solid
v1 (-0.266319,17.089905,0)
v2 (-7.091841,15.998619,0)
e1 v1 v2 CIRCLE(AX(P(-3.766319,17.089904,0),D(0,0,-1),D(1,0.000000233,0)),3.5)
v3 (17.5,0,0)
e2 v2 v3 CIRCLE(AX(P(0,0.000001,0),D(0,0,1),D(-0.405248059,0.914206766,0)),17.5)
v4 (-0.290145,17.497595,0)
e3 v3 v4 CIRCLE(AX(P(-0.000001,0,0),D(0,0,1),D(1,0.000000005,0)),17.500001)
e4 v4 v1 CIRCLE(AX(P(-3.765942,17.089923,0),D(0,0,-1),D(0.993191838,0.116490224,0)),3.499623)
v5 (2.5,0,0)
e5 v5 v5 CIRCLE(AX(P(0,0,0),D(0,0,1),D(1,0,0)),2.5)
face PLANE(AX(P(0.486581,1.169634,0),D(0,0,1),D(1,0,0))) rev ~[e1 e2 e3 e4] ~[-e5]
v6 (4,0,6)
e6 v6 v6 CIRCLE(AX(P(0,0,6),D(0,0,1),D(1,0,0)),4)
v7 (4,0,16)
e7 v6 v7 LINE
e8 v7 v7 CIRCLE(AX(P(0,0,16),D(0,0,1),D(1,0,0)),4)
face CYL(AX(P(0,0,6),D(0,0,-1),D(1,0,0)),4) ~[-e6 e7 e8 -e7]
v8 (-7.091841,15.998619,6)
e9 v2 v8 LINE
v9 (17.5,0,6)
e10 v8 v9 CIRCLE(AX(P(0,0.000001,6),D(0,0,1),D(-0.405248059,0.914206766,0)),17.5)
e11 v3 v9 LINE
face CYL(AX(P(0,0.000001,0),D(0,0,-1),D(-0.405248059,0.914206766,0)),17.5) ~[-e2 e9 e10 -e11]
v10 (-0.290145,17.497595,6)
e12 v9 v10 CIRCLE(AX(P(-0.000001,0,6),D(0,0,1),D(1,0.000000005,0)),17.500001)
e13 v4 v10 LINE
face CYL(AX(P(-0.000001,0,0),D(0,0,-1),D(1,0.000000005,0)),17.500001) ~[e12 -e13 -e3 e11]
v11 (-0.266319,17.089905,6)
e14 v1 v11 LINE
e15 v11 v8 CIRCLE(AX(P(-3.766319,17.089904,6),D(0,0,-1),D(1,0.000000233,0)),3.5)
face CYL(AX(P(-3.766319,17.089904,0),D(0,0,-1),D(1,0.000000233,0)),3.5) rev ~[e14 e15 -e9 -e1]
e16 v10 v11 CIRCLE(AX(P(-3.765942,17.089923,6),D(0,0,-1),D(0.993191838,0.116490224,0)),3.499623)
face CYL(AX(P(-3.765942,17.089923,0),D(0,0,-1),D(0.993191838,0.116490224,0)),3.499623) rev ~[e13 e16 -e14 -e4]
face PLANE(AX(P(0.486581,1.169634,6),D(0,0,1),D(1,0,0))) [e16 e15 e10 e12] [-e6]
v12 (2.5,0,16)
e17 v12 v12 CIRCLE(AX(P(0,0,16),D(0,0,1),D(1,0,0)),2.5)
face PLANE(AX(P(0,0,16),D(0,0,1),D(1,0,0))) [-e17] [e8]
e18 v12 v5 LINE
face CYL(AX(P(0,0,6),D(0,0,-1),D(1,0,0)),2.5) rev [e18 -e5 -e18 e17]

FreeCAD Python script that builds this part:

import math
import FreeCAD as App
import Part
import Sketcher

doc = App.newDocument("Part")
body = doc.addObject("PartDesign::Body", "Body")

# Sketch on XY plane
sketch1 = body.newObject("Sketcher::SketchObject", "Sketch")
sketch1.AttachmentSupport = (doc.getObject("XY_Plane"), [""])
sketch1.MapMode = "FlatFace"
sketch1.addGeometry(Part.ArcOfCircle(Part.Circle(App.Vector(0, 0, 0), App.Vector(0, 0, 1), 17.5), math.radians(114), math.radians(360)), False)
sketch1.addGeometry(Part.ArcOfCircle(Part.Circle(App.Vector(0, 0, 0), App.Vector(0, 0, 1), 17.5), math.radians(0), math.radians(91)), False)
sketch1.addGeometry(Part.ArcOfCircle(Part.Circle(App.Vector(-3.77, 17.09, 0), App.Vector(0, 0, 1), 3.5), math.radians(0), math.radians(6.69)), False)
sketch1.addGeometry(Part.ArcOfCircle(Part.Circle(App.Vector(-3.77, 17.09, 0), App.Vector(0, 0, 1), 3.5), math.radians(-162), math.radians(0)), False)
sketch1.addGeometry(Part.Circle(App.Vector(0, 0, 0), App.Vector(0, 0, 1), 2.5), False)
sketch1.addConstraint(Sketcher.Constraint("Tangent", 0, 2, 1, 1))
sketch1.addConstraint(Sketcher.Constraint("Coincident", 1, 2, 2, 2))
sketch1.addConstraint(Sketcher.Constraint("Coincident", 2, 1, 3, 2))
sketch1.addConstraint(Sketcher.Constraint("Coincident", 3, 1, 0, 1))
sketch1.addConstraint(Sketcher.Constraint("Coincident", 0, 3, -1, 1))
sketch1.addConstraint(Sketcher.Constraint("Coincident", 4, 3, -1, 1))
sketch1.addConstraint(Sketcher.Constraint("Equal", 0, 1))
sketch1.addConstraint(Sketcher.Constraint("PointOnObject", 0, 2, -1))
sketch1.addConstraint(Sketcher.Constraint("Horizontal", 3, 3, 2, 1))
sketch1.addConstraint(Sketcher.Constraint("Diameter", 4, 5.0))
sketch1.addConstraint(Sketcher.Constraint("Radius", 0, 17.5))
sketch1.addConstraint(Sketcher.Constraint("Radius", 3, 3.5))
sketch1.addConstraint(Sketcher.Constraint("Radius", 2, 3.499623))
sketch1.addConstraint(Sketcher.Constraint("DistanceX", 3, 1, 2, 3, 3.325899))
sketch1.addConstraint(Sketcher.Constraint("DistanceX", 3, 3, -1, 1, 3.766319))
sketch1.addConstraint(Sketcher.Constraint("DistanceY", 2, 3, 1, 2, 0.407672))
pad1 = body.newObject("PartDesign::Pad", "Pad")
pad1.Profile = sketch1
pad1.Length = 6

# Sketch on XY plane
sketch2 = body.newObject("Sketcher::SketchObject", "Sketch001")
sketch2.AttachmentSupport = (doc.getObject("XY_Plane"), [""])
sketch2.MapMode = "FlatFace"
sketch2.AttachmentOffset = App.Placement(App.Vector(0, 0, 6), App.Rotation())
sketch2.addGeometry(Part.Circle(App.Vector(0, 0, 0), App.Vector(0, 0, 1), 4), False)
sketch2.addGeometry(Part.Circle(App.Vector(0, 0, 0), App.Vector(0, 0, 1), 2.5), False)
sketch2.addConstraint(Sketcher.Constraint("Coincident", 0, 3, -1, 1))
sketch2.addConstraint(Sketcher.Constraint("Coincident", 1, 3, -1, 1))
sketch2.addConstraint(Sketcher.Constraint("Diameter", 0, 8.0))
sketch2.addConstraint(Sketcher.Constraint("Diameter", 1, 5.0))
pad2 = body.newObject("PartDesign::Pad", "Pad001")
pad2.Profile = sketch2
pad2.Length = 10

doc.recompute()
